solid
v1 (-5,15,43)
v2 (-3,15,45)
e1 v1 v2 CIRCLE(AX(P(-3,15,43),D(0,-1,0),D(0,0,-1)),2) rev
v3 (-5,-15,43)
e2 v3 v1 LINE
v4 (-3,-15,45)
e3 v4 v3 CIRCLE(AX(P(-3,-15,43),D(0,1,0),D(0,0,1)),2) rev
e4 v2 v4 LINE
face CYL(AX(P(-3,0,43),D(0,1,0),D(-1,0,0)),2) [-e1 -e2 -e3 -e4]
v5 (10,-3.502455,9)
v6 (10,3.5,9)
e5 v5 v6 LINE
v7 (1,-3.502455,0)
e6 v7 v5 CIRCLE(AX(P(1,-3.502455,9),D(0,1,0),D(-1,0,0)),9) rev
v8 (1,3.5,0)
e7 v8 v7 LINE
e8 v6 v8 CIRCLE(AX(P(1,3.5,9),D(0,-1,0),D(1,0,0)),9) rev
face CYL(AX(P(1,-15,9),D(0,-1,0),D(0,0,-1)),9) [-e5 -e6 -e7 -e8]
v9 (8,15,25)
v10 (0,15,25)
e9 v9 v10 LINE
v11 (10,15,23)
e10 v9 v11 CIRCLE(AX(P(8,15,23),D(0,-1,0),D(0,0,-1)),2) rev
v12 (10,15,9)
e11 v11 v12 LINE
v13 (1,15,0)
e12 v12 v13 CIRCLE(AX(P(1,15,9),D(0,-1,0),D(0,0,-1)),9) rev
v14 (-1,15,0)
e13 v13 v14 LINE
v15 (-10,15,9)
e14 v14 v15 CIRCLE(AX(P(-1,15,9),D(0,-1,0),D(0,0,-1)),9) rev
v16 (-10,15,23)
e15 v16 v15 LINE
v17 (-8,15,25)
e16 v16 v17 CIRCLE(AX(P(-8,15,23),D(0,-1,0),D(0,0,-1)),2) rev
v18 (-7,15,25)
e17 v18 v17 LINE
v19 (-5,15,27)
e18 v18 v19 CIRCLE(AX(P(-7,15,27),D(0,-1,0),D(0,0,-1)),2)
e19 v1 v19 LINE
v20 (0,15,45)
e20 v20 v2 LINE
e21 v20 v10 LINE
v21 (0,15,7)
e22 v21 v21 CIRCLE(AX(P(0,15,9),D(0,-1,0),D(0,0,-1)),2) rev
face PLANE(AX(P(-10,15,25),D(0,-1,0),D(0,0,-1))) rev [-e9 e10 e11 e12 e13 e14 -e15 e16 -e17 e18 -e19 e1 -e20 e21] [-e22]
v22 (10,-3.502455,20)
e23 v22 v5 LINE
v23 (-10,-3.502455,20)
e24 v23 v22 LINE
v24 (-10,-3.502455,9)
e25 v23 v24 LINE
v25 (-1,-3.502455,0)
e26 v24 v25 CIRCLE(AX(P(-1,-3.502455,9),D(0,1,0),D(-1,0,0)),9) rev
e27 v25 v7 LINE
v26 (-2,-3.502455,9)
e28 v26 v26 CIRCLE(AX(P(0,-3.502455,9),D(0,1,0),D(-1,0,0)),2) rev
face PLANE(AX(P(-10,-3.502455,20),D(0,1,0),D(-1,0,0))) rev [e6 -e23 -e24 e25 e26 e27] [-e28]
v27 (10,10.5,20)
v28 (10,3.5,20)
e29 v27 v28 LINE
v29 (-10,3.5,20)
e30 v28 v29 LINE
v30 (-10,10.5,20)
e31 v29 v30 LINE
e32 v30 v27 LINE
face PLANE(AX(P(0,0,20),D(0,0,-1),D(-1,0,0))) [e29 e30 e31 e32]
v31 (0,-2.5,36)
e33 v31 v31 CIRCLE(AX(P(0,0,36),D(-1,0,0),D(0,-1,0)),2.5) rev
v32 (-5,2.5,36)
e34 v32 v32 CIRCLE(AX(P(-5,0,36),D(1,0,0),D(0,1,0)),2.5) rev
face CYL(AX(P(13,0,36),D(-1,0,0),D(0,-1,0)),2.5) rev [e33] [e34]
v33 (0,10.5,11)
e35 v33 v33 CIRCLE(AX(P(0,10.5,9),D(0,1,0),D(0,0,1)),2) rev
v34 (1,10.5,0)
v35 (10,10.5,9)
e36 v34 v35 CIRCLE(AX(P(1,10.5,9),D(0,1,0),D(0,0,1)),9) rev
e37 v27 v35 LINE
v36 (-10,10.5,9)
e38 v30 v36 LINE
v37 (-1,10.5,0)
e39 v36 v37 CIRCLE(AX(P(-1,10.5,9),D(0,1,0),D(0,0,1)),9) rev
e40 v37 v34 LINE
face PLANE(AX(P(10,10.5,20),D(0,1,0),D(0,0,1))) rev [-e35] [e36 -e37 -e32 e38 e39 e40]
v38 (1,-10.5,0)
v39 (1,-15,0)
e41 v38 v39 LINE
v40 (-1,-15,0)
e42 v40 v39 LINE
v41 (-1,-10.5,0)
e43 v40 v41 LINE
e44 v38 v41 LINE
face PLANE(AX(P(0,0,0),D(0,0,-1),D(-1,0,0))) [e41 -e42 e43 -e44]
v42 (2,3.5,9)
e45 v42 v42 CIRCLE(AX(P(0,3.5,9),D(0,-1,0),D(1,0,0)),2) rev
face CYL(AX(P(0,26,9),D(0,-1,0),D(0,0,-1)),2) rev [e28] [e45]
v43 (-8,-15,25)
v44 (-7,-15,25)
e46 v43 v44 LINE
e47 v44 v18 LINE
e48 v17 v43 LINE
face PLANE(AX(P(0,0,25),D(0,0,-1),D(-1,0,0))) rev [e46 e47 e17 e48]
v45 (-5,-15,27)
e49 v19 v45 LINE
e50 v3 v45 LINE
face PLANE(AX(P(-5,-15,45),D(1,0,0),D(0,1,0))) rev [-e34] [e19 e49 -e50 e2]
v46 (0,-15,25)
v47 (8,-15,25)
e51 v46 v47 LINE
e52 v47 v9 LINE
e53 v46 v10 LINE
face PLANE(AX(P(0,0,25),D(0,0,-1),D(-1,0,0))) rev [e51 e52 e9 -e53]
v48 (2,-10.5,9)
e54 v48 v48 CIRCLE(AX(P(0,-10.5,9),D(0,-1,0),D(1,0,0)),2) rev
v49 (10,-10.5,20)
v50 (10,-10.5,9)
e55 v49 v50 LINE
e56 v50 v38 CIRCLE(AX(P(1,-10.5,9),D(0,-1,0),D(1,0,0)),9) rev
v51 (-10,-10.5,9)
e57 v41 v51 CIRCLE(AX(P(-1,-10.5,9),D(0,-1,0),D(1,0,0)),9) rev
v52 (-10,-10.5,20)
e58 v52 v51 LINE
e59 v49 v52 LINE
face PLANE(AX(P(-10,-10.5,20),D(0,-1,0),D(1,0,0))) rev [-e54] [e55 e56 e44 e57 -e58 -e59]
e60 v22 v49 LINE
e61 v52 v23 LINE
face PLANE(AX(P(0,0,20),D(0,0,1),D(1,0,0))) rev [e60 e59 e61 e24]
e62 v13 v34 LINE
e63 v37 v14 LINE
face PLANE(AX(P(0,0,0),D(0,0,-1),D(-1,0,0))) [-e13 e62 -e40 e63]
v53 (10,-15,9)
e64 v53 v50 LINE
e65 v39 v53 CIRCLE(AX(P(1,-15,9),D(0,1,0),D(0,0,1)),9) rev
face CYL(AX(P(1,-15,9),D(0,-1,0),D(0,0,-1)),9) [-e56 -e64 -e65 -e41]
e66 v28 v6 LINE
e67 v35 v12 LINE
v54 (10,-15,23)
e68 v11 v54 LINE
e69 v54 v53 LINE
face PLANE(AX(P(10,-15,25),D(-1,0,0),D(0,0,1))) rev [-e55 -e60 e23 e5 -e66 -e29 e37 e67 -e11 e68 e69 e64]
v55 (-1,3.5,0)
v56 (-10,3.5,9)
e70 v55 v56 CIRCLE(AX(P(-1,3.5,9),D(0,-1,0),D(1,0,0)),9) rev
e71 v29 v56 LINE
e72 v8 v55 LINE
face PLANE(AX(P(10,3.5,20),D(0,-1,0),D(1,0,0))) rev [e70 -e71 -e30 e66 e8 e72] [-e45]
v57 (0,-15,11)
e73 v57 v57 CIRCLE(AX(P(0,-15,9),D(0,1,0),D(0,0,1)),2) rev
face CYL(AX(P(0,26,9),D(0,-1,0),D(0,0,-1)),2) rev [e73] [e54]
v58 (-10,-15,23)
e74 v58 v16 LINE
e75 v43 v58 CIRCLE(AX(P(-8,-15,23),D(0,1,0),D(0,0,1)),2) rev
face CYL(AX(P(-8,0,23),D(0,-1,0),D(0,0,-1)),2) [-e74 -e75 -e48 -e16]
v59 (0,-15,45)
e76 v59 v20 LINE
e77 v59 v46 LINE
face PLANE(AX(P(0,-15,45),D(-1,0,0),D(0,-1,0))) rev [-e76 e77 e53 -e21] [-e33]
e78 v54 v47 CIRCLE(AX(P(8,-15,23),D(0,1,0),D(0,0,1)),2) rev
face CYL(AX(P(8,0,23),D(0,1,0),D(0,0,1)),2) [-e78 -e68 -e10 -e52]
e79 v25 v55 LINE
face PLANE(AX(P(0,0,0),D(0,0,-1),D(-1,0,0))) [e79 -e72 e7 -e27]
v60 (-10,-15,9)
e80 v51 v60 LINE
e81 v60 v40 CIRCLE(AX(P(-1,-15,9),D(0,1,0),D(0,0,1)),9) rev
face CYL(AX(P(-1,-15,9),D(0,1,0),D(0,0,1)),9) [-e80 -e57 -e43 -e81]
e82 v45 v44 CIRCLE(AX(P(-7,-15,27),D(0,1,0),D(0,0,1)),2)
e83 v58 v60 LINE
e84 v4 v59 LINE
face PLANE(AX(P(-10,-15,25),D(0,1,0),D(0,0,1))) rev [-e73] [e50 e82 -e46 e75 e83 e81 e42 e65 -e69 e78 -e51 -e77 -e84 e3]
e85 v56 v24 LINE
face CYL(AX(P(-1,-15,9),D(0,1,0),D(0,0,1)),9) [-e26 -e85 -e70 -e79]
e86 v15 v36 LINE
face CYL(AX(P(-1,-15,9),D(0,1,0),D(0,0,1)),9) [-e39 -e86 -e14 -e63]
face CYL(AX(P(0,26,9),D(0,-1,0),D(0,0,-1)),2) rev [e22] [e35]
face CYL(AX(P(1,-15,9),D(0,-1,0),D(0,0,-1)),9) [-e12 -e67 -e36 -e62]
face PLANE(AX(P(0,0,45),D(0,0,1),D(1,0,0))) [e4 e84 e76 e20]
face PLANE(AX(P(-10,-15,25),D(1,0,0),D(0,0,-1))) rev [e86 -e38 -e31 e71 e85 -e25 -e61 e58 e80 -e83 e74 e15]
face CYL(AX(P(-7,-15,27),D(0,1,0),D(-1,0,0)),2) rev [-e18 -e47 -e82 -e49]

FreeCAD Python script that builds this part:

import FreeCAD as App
import Part
import Sketcher

V = App.Vector


def edges_at(feature, points):
    """Names of the edges that pass closest to the given points."""
    edges = feature.Shape.Edges
    near = lambda p: min(range(len(edges)), key=lambda i: edges[i].distToShape(Part.Vertex(*p))[0])
    return sorted({f"Edge{near(p) + 1}" for p in points})

doc = App.newDocument("Part")
body = doc.addObject("PartDesign::Body", "Body")

# Sketch on XY plane
sketch1 = body.newObject("Sketcher::SketchObject", "Sketch")
sketch1.AttachmentSupport = (doc.getObject("XY_Plane"), [""])
sketch1.MapMode = "FlatFace"
sketch1.addGeometry([
    Part.LineSegment(V(-10, 15, 0), V(-10, -15, 0)),
    Part.LineSegment(V(-10, -15, 0), V(10, -15, 0)),
    Part.LineSegment(V(10, -15, 0), V(10, 15, 0)),
    Part.LineSegment(V(10, 15, 0), V(-10, 15, 0)),
], False)
sketch1.addConstraint([
    Sketcher.Constraint("Coincident", 0, 2, 1, 1),
    Sketcher.Constraint("Coincident", 1, 2, 2, 1),
    Sketcher.Constraint("Coincident", 2, 2, 3, 1),
    Sketcher.Constraint("Coincident", 3, 2, 0, 1),
    Sketcher.Constraint("Vertical", 0),
    Sketcher.Constraint("Horizontal", 1),
    Sketcher.Constraint("Vertical", 2),
    Sketcher.Constraint("Horizontal", 3),
    Sketcher.Constraint("Symmetric", 0, 2, 2, 2, -1, 1),
    Sketcher.Constraint("DistanceX", 1, 1, 1, 2, 20.0),
    Sketcher.Constraint("DistanceY", 0, 2, 0, 1, 30.0),
])
pad1 = body.newObject("PartDesign::Pad", "Pad")
pad1.Profile = sketch1
pad1.Length = 25

# Sketch on XY plane
sketch2 = body.newObject("Sketcher::SketchObject", "Sketch001")
sketch2.AttachmentSupport = (doc.getObject("XY_Plane"), [""])
sketch2.MapMode = "FlatFace"
sketch2.addGeometry([
    Part.LineSegment(V(10, 10, 0), V(10, 4, 0)),  # 0
    Part.LineSegment(V(10, 4, 0), V(-10, 4, 0)),  # 1
    Part.LineSegment(V(-10, 4, 0), V(-10, 10, 0)),  # 2
    Part.LineSegment(V(-10, 10, 0), V(10, 10, 0)),  # 3
    Part.LineSegment(V(10, -4, 0), V(10, -10, 0)),  # 4
    Part.LineSegment(V(10, -10, 0), V(-10, -10, 0)),  # 5
    Part.LineSegment(V(-10, -10, 0), V(-10, -4, 0)),  # 6
    Part.LineSegment(V(-10, -4, 0), V(10, -4, 0)),  # 7
], False)
sketch2.addConstraint([
    Sketcher.Constraint("Coincident", 0, 2, 1, 1),
    Sketcher.Constraint("Coincident", 1, 2, 2, 1),
    Sketcher.Constraint("Coincident", 2, 2, 3, 1),
    Sketcher.Constraint("Coincident", 3, 2, 0, 1),
    Sketcher.Constraint("Coincident", 4, 2, 5, 1),
    Sketcher.Constraint("Coincident", 5, 2, 6, 1),
    Sketcher.Constraint("Coincident", 6, 2, 7, 1),
    Sketcher.Constraint("Coincident", 7, 2, 4, 1),
    Sketcher.Constraint("Vertical", 0),
    Sketcher.Constraint("Horizontal", 1),
    Sketcher.Constraint("Vertical", 2),
    Sketcher.Constraint("Horizontal", 3),
    Sketcher.Constraint("Vertical", 4),
    Sketcher.Constraint("Horizontal", 5),
    Sketcher.Constraint("Vertical", 6),
    Sketcher.Constraint("Horizontal", 7),
    Sketcher.Constraint("Symmetric", 2, 2, 4, 2, -1, 1),
    Sketcher.Constraint("Vertical", 3, 2, 4, 2),
    Sketcher.Constraint("Vertical", 2, 2, 5, 2),
    Sketcher.Constraint("DistanceX", 1, 2, 1, 1, 20.0),
    Sketcher.Constraint("DistanceY", 0, 2, 0, 1, 7.0),
    Sketcher.Constraint("DistanceY", 4, 2, 0, 2, 14.0),
    Sketcher.Constraint("DistanceY", 4, 2, 4, 1, 6.997545),
])
pocket1 = body.newObject("PartDesign::Pocket", "Pocket")
pocket1.Profile = sketch2
pocket1.Length = 20
pocket1.Reversed = True

# Sketch on XY plane
sketch3 = body.newObject("Sketcher::SketchObject", "Sketch002")
sketch3.AttachmentSupport = (doc.getObject("XY_Plane"), [""])
sketch3.MapMode = "FlatFace"
sketch3.AttachmentOffset = App.Placement(V(0, 0, 25), App.Rotation())
sketch3.addGeometry([
    Part.LineSegment(V(-5, 15, 0), V(-5, -15, 0)),
    Part.LineSegment(V(-5, -15, 0), V(0, -15, 0)),
    Part.LineSegment(V(0, -15, 0), V(0, 15, 0)),
    Part.LineSegment(V(0, 15, 0), V(-5, 15, 0)),
], False)
sketch3.addConstraint([
    Sketcher.Constraint("Coincident", 0, 2, 1, 1),
    Sketcher.Constraint("Coincident", 1, 2, 2, 1),
    Sketcher.Constraint("Coincident", 2, 2, 3, 1),
    Sketcher.Constraint("Coincident", 3, 2, 0, 1),
    Sketcher.Constraint("Vertical", 0),
    Sketcher.Constraint("Horizontal", 1),
    Sketcher.Constraint("Vertical", 2),
    Sketcher.Constraint("Horizontal", 3),
    Sketcher.Constraint("Symmetric", 1, 2, 2, 2, -1, 1),
    Sketcher.Constraint("DistanceX", 1, 1, 1, 2, 5.0),
    Sketcher.Constraint("DistanceY", 0, 2, 0, 1, 30.0),
])
pad2 = body.newObject("PartDesign::Pad", "Pad001")
pad2.Profile = sketch3
pad2.Length = 20

# Sketch on YZ plane
sketch4 = body.newObject("Sketcher::SketchObject", "Sketch003")
sketch4.AttachmentSupport = (doc.getObject("YZ_Plane"), [""])
sketch4.MapMode = "FlatFace"
sketch4.addGeometry(Part.Circle(V(0, 36, 0), V(0, 0, 1), 2.5), False)
sketch4.addConstraint([
    Sketcher.Constraint("PointOnObject", 0, 3, -2),
    Sketcher.Constraint("Diameter", 0, 5.0),
    Sketcher.Constraint("DistanceY", -1, 1, 0, 3, 36.0),
])
pocket2 = body.newObject("PartDesign::Pocket", "Pocket001")
pocket2.Profile = sketch4
pocket2.Type = "ThroughAll"
pocket2.Midplane = True
doc.recompute()

fillet = body.newObject("PartDesign::Fillet", "Fillet")
fillet.Base = (pocket2, edges_at(pocket2, [
    (10, -0.001, 0),
    (10, 12.75, 0),
    (-10, -0.001, 0),
    (-10, -12.75, 0),
    (-10, 12.75, 0),
    (10, -12.75, 0),
]))
fillet.Radius = 9

# Sketch on XZ plane
sketch5 = body.newObject("Sketcher::SketchObject", "Sketch004")
sketch5.AttachmentSupport = (doc.getObject("XZ_Plane"), [""])
sketch5.MapMode = "FlatFace"
sketch5.AttachmentOffset = App.Placement(V(0, 0, -15), App.Rotation())
sketch5.addGeometry(Part.Circle(V(0, 9, 0), V(0, 0, 1), 2), False)
sketch5.addConstraint([
    Sketcher.Constraint("PointOnObject", 0, 3, -2),
    Sketcher.Constraint("Diameter", 0, 4.0),
    Sketcher.Constraint("DistanceY", -1, 1, 0, 3, 9.0),
])
pocket3 = body.newObject("PartDesign::Pocket", "Pocket002")
pocket3.Profile = sketch5
pocket3.Type = "ThroughAll"
pocket3.Midplane = True
doc.recompute()

fillet2 = body.newObject("PartDesign::Fillet", "Fillet001")
fillet2.Base = (pocket3, edges_at(pocket3, [(-10, 0, 25), (-5, 0, 25)]))
fillet2.Radius = 2
doc.recompute()

fillet3 = body.newObject("PartDesign::Fillet", "Fillet002")
fillet3.Base = (fillet2, edges_at(fillet2, [(10, 0, 25)]))
fillet3.Radius = 2
doc.recompute()

fillet4 = body.newObject("PartDesign::Fillet", "Fillet003")
fillet4.Base = (fillet3, edges_at(fillet3, [(-5, 0, 45)]))
fillet4.Radius = 2

doc.recompute()
